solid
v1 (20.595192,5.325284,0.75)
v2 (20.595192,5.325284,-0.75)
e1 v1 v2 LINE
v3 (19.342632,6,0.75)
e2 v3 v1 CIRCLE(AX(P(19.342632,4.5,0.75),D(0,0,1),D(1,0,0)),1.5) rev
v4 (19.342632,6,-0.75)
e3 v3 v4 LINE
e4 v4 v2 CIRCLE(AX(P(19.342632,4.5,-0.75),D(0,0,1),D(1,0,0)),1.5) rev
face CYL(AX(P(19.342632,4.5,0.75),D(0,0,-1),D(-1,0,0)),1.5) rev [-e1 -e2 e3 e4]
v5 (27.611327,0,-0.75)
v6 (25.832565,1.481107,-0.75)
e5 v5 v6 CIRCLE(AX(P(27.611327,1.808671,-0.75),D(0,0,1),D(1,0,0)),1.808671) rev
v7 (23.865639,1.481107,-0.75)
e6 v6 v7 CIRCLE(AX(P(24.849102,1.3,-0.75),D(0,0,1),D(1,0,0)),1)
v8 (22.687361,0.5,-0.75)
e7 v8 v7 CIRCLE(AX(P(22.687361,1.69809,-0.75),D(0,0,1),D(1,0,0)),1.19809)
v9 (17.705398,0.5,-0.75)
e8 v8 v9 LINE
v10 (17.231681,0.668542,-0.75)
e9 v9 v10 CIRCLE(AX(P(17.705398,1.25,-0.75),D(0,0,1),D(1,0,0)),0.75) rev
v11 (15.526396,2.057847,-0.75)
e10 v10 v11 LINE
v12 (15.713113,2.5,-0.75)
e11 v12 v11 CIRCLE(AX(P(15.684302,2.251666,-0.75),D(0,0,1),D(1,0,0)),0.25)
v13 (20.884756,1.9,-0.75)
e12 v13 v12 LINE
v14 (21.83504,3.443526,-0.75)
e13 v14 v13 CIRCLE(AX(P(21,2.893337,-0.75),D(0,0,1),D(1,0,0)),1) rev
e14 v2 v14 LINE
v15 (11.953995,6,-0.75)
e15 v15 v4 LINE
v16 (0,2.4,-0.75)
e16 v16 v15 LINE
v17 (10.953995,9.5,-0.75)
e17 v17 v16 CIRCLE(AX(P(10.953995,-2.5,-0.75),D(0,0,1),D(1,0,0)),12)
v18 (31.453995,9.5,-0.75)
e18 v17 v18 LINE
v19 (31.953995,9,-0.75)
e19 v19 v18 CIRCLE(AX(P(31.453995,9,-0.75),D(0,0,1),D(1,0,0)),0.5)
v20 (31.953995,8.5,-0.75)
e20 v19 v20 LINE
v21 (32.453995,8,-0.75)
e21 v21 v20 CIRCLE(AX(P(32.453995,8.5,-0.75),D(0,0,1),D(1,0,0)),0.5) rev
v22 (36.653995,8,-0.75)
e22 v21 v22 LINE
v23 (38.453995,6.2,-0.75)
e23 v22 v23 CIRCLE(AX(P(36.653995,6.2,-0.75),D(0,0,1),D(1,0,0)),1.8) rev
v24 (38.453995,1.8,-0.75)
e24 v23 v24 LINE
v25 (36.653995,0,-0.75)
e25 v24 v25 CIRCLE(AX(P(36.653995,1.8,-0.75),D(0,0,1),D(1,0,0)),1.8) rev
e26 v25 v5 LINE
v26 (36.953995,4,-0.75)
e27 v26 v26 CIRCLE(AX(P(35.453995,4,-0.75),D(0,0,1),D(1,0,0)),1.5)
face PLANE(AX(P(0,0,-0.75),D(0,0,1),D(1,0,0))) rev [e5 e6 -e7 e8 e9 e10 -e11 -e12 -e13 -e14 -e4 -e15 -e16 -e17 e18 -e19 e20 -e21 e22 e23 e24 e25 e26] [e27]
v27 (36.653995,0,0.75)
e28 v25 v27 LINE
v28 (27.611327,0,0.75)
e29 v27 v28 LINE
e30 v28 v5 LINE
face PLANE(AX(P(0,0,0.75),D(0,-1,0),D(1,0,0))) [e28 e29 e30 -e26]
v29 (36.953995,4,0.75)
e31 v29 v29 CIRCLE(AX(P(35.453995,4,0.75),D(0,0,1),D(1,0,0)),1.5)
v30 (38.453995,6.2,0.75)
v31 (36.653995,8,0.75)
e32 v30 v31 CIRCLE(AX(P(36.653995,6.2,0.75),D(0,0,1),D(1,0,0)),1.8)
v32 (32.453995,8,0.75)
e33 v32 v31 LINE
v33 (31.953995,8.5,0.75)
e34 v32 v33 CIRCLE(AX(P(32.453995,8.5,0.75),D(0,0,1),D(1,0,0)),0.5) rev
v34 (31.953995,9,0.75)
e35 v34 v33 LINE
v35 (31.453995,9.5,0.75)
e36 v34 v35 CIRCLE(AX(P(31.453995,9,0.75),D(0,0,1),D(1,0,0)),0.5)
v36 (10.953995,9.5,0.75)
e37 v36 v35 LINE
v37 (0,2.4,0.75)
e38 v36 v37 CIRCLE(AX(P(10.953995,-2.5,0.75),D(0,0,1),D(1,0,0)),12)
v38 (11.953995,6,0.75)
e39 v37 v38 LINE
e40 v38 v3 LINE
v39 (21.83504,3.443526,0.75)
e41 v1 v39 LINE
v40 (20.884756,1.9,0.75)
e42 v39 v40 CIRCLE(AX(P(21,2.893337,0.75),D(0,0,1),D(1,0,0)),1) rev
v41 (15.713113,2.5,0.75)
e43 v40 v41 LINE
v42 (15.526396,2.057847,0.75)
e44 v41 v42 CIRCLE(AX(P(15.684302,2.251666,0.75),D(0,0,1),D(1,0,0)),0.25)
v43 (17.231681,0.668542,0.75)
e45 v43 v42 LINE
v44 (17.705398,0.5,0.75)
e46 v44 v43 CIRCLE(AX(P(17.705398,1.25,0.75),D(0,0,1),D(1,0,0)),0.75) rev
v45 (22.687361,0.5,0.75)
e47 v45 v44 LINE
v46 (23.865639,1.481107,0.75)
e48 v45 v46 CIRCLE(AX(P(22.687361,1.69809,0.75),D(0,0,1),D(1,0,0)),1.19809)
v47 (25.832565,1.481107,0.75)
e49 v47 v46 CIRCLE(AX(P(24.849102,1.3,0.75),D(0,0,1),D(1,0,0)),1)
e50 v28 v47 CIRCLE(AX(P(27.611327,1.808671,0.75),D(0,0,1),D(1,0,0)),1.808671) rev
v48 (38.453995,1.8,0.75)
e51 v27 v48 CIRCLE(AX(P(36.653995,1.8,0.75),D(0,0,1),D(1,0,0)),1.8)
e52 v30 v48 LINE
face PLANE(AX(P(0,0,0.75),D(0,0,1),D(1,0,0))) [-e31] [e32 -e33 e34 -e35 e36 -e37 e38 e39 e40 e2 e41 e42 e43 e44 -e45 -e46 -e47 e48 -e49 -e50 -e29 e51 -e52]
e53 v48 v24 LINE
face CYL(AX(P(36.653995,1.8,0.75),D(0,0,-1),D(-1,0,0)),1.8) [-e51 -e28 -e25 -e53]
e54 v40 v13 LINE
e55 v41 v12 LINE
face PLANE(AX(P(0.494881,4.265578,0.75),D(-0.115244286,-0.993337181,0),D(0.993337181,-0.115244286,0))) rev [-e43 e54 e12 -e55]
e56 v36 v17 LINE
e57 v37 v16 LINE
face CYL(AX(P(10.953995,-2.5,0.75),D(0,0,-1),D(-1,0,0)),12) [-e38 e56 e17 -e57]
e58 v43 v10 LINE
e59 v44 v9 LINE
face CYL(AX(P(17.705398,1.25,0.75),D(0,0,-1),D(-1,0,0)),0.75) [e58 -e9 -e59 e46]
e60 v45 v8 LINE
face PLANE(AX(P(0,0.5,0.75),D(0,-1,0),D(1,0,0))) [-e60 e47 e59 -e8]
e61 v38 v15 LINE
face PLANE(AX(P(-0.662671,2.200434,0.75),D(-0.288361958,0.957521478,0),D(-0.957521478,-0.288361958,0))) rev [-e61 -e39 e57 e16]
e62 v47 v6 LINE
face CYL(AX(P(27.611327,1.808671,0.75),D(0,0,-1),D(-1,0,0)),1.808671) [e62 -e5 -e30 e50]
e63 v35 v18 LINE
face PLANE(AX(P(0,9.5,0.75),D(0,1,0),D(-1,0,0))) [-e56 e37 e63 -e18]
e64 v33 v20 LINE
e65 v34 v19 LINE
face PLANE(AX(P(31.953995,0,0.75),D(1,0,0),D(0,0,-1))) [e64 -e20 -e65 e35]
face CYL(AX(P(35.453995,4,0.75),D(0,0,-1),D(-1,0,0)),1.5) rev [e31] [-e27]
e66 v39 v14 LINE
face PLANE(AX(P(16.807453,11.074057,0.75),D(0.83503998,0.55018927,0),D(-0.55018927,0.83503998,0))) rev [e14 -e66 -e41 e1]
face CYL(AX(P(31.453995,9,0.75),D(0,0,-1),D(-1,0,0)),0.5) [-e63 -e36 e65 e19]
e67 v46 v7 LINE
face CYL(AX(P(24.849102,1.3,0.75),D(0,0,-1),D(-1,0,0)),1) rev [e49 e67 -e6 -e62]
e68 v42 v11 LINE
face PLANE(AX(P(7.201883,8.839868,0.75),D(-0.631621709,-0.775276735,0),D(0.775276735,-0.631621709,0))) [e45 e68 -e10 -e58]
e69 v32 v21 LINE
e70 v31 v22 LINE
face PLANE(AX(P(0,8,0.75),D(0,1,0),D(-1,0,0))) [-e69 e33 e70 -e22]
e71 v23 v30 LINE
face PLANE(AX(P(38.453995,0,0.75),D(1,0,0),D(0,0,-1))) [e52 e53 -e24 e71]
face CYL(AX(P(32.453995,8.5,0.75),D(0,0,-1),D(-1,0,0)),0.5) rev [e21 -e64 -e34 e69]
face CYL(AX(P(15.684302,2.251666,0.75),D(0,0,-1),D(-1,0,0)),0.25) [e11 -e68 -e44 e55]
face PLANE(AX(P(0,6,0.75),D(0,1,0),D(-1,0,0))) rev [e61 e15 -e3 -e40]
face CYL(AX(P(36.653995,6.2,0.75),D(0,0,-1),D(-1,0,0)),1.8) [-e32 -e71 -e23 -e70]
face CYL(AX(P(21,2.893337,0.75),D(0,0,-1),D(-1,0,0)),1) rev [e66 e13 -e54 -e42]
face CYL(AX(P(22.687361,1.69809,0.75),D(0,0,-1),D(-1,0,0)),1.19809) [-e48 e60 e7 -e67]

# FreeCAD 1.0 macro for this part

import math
import FreeCAD as App
import Part
import Sketcher
from FreeCAD import Vector
Q = App.Units.Quantity


def edges_at(feature, points):
    """Names of the edges that pass closest to the given points."""
    edges = feature.Shape.Edges
    near = lambda p: min(range(len(edges)), key=lambda i: edges[i].distToShape(Part.Vertex(*p))[0])
    return sorted({f"Edge{near(p) + 1}" for p in points})

doc = App.newDocument("Part")
body = doc.addObject("PartDesign::Body", "Body")

sketch1 = doc.addObject("Sketcher::SketchObject", "Sketch")
body.addObject(sketch1)
sketch1.AttachmentSupport = (doc.XY_Plane, [""])
sketch1.MapMode = "FlatFace"
sketch1.addGeometry([
    Part.LineSegment(Vector(31.453995, 9.5, 0), Vector(10.953995, 9.5, 0)),
    Part.ArcOfCircle(Part.Circle(Vector(10.953995, -2.5, 0), Vector(0, 0, 1), 12), math.radians(90), math.radians(155.89982)),
    Part.LineSegment(Vector(0, 2.4, 0), Vector(11.953995, 6, 0)),
    Part.LineSegment(Vector(11.953995, 6, 0), Vector(19.342632, 6, 0)),
    Part.ArcOfCircle(Part.Circle(Vector(19.342632, 4.5, 0), Vector(0, 0, 1), 1.5), math.radians(33.379999), math.radians(90)),
    Part.LineSegment(Vector(20.595192, 5.325284, 0), Vector(21.83504, 3.443526, 0)),
    Part.ArcOfCircle(Part.Circle(Vector(21, 2.893337, 0), Vector(0, 0, 1), 1), math.radians(-96.617715), math.radians(33.379999)),
    Part.LineSegment(Vector(20.884756, 1.9, 0), Vector(15.713113, 2.5, 0)),
    Part.ArcOfCircle(Part.Circle(Vector(15.684302, 2.251666, 0), Vector(0, 0, 1), 0.25), math.radians(83.382285), math.radians(230.830129)),
    Part.LineSegment(Vector(15.526396, 2.057847, 0), Vector(17.231681, 0.668542, 0)),
    Part.ArcOfCircle(Part.Circle(Vector(17.705398, 1.25, 0), Vector(0, 0, 1), 0.75), math.radians(-129.169871), math.radians(-90)),
    Part.LineSegment(Vector(17.705398, 0.5, 0), Vector(22.687361, 0.5, 0)),
    Part.ArcOfCircle(Part.Circle(Vector(22.687361, 1.69809, 0), Vector(0, 0, 1), 1.19809), math.radians(-90), math.radians(-10.434268)),
    Part.ArcOfCircle(Part.Circle(Vector(24.849102, 1.3, 0), Vector(0, 0, 1), 1), math.radians(10.434268), math.radians(169.565732)),
    Part.ArcOfCircle(Part.Circle(Vector(27.611327, 1.808671, 0), Vector(0, 0, 1), 1.808671), math.radians(-169.565732), math.radians(-90)),
    Part.LineSegment(Vector(27.611327, 0, 0), Vector(38.453995, 0, 0)),
    Part.LineSegment(Vector(38.453995, 0, 0), Vector(38.453995, 8, 0)),
    Part.LineSegment(Vector(38.453995, 8, 0), Vector(32.453995, 8, 0)),
    Part.ArcOfCircle(Part.Circle(Vector(32.453995, 8.5, 0), Vector(0, 0, 1), 0.5), math.radians(180), math.radians(270)),
    Part.LineSegment(Vector(31.953995, 8.5, 0), Vector(31.953995, 9, 0)),
    Part.ArcOfCircle(Part.Circle(Vector(31.453995, 9, 0), Vector(0, 0, 1), 0.5), math.radians(0), math.radians(90)),
    Part.Circle(Vector(35.453995, 4, 0), Vector(0, 0, 1), 1.5),
], False)
sketch1.addConstraint([
    Sketcher.Constraint("Tangent", 0, 2, 1, 1),
    Sketcher.Constraint("Coincident", 1, 2, 2, 1),
    Sketcher.Constraint("Coincident", 2, 2, 3, 1),
    Sketcher.Constraint("Tangent", 3, 2, 4, 2),
    Sketcher.Constraint("Tangent", 4, 1, 5, 1),
    Sketcher.Constraint("Tangent", 5, 2, 6, 2),
    Sketcher.Constraint("Tangent", 6, 1, 7, 1),
    Sketcher.Constraint("Tangent", 7, 2, 8, 1),
    Sketcher.Constraint("Tangent", 8, 2, 9, 1),
    Sketcher.Constraint("Tangent", 9, 2, 10, 1),
    Sketcher.Constraint("Tangent", 10, 2, 11, 1),
    Sketcher.Constraint("Tangent", 11, 2, 12, 1),
    Sketcher.Constraint("Tangent", 12, 2, 13, 2),
    Sketcher.Constraint("Tangent", 13, 1, 14, 1),
    Sketcher.Constraint("Tangent", 14, 2, 15, 1),
    Sketcher.Constraint("Coincident", 15, 2, 16, 1),
    Sketcher.Constraint("Coincident", 16, 2, 17, 1),
    Sketcher.Constraint("Tangent", 17, 2, 18, 2),
    Sketcher.Constraint("Tangent", 18, 1, 19, 1),
    Sketcher.Constraint("Tangent", 19, 2, 20, 1),
    Sketcher.Constraint("Tangent", 20, 2, 0, 1),
    Sketcher.Constraint("Horizontal", 0),
    Sketcher.Constraint("Horizontal", 3),
    Sketcher.Constraint("Horizontal", 11),
    Sketcher.Constraint("Horizontal", 15),
    Sketcher.Constraint("Vertical", 16),
    Sketcher.Constraint("Horizontal", 17),
    Sketcher.Constraint("Vertical", 19),
    Sketcher.Constraint("Equal", 6, 13),
    Sketcher.Constraint("Equal", 18, 20),
    Sketcher.Constraint("Equal", 4, 21),
    Sketcher.Constraint("PointOnObject", 1, 2, -2),
    Sketcher.Constraint("PointOnObject", 14, 2, -1),
    Sketcher.Constraint("Horizontal", 12, 2, 13, 1),
    Sketcher.Constraint("Diameter", 21, Q("3 mm")),
    Sketcher.Constraint("Radius", 1, Q("12 mm")),
    Sketcher.Constraint("Radius", 6, Q("1 mm")),
    Sketcher.Constraint("Radius", 18, Q("0.5 mm")),
    Sketcher.Constraint("DistanceX", 17, 2, 17, 1, Q("6 mm")),
    Sketcher.Constraint("DistanceY", 16, 1, 16, 2, Q("8 mm")),
    Sketcher.Constraint("Radius", 8, Q("0.25 mm")),
    Sketcher.Constraint("Radius", 10, Q("0.75 mm")),
    Sketcher.Constraint("DistanceX", 0, 2, 0, 1, Q("20.5 mm")),
    Sketcher.Constraint("DistanceY", 19, 1, 19, 2, Q("0.5 mm")),
    Sketcher.Constraint("DistanceX", -1, 1, 6, 3, Q("21 mm")),
    Sketcher.Constraint("DistanceY", -1, 1, 21, 3, Q("4 mm")),
    Sketcher.Constraint("DistanceY", -1, 1, 2, 2, Q("6 mm")),
    Sketcher.Constraint("DistanceX", 18, 3, 21, 3, Q("3 mm")),
    Sketcher.Constraint("DistanceX", 0, 2, 2, 2, Q("1 mm")),
    Sketcher.Constraint("DistanceY", 7, 2, 4, 3, Q("2 mm")),
    Sketcher.Constraint("DistanceY", 10, 2, 7, 2, Q("2 mm")),
    Sketcher.Constraint("DistanceY", -1, 1, 13, 3, Q("1.3 mm")),
    Sketcher.Constraint("DistanceY", -1, 1, 1, 2, Q("2.4 mm")),
    Sketcher.Constraint("DistanceY", -1, 1, 6, 1, Q("1.9 mm")),
    Sketcher.Constraint("Angle", 5, Q("-56.620001 deg")),
    Sketcher.Constraint("Radius", 12, Q("1.19809 mm")),
    Sketcher.Constraint("DistanceX", 8, 2, 10, 3, Q("2.179001 mm")),
    Sketcher.Constraint("DistanceX", -1, 1, 8, 3, Q("15.684302 mm")),
    Sketcher.Constraint("DistanceX", 8, 3, 13, 3, Q("9.1648 mm")),
])
pad1 = doc.addObject("PartDesign::Pad", "Pad")
body.addObject(pad1)
pad1.Profile = sketch1
pad1.Length = 1.5
pad1.Midplane = True
doc.recompute()

fillet = doc.addObject("PartDesign::Fillet", "Fillet")
body.addObject(fillet)
fillet.Base = (pad1, edges_at(pad1, [(38.454, 8, 0), (38.454, 0, 0)]))
fillet.Radius = 1.8

doc.recompute()
